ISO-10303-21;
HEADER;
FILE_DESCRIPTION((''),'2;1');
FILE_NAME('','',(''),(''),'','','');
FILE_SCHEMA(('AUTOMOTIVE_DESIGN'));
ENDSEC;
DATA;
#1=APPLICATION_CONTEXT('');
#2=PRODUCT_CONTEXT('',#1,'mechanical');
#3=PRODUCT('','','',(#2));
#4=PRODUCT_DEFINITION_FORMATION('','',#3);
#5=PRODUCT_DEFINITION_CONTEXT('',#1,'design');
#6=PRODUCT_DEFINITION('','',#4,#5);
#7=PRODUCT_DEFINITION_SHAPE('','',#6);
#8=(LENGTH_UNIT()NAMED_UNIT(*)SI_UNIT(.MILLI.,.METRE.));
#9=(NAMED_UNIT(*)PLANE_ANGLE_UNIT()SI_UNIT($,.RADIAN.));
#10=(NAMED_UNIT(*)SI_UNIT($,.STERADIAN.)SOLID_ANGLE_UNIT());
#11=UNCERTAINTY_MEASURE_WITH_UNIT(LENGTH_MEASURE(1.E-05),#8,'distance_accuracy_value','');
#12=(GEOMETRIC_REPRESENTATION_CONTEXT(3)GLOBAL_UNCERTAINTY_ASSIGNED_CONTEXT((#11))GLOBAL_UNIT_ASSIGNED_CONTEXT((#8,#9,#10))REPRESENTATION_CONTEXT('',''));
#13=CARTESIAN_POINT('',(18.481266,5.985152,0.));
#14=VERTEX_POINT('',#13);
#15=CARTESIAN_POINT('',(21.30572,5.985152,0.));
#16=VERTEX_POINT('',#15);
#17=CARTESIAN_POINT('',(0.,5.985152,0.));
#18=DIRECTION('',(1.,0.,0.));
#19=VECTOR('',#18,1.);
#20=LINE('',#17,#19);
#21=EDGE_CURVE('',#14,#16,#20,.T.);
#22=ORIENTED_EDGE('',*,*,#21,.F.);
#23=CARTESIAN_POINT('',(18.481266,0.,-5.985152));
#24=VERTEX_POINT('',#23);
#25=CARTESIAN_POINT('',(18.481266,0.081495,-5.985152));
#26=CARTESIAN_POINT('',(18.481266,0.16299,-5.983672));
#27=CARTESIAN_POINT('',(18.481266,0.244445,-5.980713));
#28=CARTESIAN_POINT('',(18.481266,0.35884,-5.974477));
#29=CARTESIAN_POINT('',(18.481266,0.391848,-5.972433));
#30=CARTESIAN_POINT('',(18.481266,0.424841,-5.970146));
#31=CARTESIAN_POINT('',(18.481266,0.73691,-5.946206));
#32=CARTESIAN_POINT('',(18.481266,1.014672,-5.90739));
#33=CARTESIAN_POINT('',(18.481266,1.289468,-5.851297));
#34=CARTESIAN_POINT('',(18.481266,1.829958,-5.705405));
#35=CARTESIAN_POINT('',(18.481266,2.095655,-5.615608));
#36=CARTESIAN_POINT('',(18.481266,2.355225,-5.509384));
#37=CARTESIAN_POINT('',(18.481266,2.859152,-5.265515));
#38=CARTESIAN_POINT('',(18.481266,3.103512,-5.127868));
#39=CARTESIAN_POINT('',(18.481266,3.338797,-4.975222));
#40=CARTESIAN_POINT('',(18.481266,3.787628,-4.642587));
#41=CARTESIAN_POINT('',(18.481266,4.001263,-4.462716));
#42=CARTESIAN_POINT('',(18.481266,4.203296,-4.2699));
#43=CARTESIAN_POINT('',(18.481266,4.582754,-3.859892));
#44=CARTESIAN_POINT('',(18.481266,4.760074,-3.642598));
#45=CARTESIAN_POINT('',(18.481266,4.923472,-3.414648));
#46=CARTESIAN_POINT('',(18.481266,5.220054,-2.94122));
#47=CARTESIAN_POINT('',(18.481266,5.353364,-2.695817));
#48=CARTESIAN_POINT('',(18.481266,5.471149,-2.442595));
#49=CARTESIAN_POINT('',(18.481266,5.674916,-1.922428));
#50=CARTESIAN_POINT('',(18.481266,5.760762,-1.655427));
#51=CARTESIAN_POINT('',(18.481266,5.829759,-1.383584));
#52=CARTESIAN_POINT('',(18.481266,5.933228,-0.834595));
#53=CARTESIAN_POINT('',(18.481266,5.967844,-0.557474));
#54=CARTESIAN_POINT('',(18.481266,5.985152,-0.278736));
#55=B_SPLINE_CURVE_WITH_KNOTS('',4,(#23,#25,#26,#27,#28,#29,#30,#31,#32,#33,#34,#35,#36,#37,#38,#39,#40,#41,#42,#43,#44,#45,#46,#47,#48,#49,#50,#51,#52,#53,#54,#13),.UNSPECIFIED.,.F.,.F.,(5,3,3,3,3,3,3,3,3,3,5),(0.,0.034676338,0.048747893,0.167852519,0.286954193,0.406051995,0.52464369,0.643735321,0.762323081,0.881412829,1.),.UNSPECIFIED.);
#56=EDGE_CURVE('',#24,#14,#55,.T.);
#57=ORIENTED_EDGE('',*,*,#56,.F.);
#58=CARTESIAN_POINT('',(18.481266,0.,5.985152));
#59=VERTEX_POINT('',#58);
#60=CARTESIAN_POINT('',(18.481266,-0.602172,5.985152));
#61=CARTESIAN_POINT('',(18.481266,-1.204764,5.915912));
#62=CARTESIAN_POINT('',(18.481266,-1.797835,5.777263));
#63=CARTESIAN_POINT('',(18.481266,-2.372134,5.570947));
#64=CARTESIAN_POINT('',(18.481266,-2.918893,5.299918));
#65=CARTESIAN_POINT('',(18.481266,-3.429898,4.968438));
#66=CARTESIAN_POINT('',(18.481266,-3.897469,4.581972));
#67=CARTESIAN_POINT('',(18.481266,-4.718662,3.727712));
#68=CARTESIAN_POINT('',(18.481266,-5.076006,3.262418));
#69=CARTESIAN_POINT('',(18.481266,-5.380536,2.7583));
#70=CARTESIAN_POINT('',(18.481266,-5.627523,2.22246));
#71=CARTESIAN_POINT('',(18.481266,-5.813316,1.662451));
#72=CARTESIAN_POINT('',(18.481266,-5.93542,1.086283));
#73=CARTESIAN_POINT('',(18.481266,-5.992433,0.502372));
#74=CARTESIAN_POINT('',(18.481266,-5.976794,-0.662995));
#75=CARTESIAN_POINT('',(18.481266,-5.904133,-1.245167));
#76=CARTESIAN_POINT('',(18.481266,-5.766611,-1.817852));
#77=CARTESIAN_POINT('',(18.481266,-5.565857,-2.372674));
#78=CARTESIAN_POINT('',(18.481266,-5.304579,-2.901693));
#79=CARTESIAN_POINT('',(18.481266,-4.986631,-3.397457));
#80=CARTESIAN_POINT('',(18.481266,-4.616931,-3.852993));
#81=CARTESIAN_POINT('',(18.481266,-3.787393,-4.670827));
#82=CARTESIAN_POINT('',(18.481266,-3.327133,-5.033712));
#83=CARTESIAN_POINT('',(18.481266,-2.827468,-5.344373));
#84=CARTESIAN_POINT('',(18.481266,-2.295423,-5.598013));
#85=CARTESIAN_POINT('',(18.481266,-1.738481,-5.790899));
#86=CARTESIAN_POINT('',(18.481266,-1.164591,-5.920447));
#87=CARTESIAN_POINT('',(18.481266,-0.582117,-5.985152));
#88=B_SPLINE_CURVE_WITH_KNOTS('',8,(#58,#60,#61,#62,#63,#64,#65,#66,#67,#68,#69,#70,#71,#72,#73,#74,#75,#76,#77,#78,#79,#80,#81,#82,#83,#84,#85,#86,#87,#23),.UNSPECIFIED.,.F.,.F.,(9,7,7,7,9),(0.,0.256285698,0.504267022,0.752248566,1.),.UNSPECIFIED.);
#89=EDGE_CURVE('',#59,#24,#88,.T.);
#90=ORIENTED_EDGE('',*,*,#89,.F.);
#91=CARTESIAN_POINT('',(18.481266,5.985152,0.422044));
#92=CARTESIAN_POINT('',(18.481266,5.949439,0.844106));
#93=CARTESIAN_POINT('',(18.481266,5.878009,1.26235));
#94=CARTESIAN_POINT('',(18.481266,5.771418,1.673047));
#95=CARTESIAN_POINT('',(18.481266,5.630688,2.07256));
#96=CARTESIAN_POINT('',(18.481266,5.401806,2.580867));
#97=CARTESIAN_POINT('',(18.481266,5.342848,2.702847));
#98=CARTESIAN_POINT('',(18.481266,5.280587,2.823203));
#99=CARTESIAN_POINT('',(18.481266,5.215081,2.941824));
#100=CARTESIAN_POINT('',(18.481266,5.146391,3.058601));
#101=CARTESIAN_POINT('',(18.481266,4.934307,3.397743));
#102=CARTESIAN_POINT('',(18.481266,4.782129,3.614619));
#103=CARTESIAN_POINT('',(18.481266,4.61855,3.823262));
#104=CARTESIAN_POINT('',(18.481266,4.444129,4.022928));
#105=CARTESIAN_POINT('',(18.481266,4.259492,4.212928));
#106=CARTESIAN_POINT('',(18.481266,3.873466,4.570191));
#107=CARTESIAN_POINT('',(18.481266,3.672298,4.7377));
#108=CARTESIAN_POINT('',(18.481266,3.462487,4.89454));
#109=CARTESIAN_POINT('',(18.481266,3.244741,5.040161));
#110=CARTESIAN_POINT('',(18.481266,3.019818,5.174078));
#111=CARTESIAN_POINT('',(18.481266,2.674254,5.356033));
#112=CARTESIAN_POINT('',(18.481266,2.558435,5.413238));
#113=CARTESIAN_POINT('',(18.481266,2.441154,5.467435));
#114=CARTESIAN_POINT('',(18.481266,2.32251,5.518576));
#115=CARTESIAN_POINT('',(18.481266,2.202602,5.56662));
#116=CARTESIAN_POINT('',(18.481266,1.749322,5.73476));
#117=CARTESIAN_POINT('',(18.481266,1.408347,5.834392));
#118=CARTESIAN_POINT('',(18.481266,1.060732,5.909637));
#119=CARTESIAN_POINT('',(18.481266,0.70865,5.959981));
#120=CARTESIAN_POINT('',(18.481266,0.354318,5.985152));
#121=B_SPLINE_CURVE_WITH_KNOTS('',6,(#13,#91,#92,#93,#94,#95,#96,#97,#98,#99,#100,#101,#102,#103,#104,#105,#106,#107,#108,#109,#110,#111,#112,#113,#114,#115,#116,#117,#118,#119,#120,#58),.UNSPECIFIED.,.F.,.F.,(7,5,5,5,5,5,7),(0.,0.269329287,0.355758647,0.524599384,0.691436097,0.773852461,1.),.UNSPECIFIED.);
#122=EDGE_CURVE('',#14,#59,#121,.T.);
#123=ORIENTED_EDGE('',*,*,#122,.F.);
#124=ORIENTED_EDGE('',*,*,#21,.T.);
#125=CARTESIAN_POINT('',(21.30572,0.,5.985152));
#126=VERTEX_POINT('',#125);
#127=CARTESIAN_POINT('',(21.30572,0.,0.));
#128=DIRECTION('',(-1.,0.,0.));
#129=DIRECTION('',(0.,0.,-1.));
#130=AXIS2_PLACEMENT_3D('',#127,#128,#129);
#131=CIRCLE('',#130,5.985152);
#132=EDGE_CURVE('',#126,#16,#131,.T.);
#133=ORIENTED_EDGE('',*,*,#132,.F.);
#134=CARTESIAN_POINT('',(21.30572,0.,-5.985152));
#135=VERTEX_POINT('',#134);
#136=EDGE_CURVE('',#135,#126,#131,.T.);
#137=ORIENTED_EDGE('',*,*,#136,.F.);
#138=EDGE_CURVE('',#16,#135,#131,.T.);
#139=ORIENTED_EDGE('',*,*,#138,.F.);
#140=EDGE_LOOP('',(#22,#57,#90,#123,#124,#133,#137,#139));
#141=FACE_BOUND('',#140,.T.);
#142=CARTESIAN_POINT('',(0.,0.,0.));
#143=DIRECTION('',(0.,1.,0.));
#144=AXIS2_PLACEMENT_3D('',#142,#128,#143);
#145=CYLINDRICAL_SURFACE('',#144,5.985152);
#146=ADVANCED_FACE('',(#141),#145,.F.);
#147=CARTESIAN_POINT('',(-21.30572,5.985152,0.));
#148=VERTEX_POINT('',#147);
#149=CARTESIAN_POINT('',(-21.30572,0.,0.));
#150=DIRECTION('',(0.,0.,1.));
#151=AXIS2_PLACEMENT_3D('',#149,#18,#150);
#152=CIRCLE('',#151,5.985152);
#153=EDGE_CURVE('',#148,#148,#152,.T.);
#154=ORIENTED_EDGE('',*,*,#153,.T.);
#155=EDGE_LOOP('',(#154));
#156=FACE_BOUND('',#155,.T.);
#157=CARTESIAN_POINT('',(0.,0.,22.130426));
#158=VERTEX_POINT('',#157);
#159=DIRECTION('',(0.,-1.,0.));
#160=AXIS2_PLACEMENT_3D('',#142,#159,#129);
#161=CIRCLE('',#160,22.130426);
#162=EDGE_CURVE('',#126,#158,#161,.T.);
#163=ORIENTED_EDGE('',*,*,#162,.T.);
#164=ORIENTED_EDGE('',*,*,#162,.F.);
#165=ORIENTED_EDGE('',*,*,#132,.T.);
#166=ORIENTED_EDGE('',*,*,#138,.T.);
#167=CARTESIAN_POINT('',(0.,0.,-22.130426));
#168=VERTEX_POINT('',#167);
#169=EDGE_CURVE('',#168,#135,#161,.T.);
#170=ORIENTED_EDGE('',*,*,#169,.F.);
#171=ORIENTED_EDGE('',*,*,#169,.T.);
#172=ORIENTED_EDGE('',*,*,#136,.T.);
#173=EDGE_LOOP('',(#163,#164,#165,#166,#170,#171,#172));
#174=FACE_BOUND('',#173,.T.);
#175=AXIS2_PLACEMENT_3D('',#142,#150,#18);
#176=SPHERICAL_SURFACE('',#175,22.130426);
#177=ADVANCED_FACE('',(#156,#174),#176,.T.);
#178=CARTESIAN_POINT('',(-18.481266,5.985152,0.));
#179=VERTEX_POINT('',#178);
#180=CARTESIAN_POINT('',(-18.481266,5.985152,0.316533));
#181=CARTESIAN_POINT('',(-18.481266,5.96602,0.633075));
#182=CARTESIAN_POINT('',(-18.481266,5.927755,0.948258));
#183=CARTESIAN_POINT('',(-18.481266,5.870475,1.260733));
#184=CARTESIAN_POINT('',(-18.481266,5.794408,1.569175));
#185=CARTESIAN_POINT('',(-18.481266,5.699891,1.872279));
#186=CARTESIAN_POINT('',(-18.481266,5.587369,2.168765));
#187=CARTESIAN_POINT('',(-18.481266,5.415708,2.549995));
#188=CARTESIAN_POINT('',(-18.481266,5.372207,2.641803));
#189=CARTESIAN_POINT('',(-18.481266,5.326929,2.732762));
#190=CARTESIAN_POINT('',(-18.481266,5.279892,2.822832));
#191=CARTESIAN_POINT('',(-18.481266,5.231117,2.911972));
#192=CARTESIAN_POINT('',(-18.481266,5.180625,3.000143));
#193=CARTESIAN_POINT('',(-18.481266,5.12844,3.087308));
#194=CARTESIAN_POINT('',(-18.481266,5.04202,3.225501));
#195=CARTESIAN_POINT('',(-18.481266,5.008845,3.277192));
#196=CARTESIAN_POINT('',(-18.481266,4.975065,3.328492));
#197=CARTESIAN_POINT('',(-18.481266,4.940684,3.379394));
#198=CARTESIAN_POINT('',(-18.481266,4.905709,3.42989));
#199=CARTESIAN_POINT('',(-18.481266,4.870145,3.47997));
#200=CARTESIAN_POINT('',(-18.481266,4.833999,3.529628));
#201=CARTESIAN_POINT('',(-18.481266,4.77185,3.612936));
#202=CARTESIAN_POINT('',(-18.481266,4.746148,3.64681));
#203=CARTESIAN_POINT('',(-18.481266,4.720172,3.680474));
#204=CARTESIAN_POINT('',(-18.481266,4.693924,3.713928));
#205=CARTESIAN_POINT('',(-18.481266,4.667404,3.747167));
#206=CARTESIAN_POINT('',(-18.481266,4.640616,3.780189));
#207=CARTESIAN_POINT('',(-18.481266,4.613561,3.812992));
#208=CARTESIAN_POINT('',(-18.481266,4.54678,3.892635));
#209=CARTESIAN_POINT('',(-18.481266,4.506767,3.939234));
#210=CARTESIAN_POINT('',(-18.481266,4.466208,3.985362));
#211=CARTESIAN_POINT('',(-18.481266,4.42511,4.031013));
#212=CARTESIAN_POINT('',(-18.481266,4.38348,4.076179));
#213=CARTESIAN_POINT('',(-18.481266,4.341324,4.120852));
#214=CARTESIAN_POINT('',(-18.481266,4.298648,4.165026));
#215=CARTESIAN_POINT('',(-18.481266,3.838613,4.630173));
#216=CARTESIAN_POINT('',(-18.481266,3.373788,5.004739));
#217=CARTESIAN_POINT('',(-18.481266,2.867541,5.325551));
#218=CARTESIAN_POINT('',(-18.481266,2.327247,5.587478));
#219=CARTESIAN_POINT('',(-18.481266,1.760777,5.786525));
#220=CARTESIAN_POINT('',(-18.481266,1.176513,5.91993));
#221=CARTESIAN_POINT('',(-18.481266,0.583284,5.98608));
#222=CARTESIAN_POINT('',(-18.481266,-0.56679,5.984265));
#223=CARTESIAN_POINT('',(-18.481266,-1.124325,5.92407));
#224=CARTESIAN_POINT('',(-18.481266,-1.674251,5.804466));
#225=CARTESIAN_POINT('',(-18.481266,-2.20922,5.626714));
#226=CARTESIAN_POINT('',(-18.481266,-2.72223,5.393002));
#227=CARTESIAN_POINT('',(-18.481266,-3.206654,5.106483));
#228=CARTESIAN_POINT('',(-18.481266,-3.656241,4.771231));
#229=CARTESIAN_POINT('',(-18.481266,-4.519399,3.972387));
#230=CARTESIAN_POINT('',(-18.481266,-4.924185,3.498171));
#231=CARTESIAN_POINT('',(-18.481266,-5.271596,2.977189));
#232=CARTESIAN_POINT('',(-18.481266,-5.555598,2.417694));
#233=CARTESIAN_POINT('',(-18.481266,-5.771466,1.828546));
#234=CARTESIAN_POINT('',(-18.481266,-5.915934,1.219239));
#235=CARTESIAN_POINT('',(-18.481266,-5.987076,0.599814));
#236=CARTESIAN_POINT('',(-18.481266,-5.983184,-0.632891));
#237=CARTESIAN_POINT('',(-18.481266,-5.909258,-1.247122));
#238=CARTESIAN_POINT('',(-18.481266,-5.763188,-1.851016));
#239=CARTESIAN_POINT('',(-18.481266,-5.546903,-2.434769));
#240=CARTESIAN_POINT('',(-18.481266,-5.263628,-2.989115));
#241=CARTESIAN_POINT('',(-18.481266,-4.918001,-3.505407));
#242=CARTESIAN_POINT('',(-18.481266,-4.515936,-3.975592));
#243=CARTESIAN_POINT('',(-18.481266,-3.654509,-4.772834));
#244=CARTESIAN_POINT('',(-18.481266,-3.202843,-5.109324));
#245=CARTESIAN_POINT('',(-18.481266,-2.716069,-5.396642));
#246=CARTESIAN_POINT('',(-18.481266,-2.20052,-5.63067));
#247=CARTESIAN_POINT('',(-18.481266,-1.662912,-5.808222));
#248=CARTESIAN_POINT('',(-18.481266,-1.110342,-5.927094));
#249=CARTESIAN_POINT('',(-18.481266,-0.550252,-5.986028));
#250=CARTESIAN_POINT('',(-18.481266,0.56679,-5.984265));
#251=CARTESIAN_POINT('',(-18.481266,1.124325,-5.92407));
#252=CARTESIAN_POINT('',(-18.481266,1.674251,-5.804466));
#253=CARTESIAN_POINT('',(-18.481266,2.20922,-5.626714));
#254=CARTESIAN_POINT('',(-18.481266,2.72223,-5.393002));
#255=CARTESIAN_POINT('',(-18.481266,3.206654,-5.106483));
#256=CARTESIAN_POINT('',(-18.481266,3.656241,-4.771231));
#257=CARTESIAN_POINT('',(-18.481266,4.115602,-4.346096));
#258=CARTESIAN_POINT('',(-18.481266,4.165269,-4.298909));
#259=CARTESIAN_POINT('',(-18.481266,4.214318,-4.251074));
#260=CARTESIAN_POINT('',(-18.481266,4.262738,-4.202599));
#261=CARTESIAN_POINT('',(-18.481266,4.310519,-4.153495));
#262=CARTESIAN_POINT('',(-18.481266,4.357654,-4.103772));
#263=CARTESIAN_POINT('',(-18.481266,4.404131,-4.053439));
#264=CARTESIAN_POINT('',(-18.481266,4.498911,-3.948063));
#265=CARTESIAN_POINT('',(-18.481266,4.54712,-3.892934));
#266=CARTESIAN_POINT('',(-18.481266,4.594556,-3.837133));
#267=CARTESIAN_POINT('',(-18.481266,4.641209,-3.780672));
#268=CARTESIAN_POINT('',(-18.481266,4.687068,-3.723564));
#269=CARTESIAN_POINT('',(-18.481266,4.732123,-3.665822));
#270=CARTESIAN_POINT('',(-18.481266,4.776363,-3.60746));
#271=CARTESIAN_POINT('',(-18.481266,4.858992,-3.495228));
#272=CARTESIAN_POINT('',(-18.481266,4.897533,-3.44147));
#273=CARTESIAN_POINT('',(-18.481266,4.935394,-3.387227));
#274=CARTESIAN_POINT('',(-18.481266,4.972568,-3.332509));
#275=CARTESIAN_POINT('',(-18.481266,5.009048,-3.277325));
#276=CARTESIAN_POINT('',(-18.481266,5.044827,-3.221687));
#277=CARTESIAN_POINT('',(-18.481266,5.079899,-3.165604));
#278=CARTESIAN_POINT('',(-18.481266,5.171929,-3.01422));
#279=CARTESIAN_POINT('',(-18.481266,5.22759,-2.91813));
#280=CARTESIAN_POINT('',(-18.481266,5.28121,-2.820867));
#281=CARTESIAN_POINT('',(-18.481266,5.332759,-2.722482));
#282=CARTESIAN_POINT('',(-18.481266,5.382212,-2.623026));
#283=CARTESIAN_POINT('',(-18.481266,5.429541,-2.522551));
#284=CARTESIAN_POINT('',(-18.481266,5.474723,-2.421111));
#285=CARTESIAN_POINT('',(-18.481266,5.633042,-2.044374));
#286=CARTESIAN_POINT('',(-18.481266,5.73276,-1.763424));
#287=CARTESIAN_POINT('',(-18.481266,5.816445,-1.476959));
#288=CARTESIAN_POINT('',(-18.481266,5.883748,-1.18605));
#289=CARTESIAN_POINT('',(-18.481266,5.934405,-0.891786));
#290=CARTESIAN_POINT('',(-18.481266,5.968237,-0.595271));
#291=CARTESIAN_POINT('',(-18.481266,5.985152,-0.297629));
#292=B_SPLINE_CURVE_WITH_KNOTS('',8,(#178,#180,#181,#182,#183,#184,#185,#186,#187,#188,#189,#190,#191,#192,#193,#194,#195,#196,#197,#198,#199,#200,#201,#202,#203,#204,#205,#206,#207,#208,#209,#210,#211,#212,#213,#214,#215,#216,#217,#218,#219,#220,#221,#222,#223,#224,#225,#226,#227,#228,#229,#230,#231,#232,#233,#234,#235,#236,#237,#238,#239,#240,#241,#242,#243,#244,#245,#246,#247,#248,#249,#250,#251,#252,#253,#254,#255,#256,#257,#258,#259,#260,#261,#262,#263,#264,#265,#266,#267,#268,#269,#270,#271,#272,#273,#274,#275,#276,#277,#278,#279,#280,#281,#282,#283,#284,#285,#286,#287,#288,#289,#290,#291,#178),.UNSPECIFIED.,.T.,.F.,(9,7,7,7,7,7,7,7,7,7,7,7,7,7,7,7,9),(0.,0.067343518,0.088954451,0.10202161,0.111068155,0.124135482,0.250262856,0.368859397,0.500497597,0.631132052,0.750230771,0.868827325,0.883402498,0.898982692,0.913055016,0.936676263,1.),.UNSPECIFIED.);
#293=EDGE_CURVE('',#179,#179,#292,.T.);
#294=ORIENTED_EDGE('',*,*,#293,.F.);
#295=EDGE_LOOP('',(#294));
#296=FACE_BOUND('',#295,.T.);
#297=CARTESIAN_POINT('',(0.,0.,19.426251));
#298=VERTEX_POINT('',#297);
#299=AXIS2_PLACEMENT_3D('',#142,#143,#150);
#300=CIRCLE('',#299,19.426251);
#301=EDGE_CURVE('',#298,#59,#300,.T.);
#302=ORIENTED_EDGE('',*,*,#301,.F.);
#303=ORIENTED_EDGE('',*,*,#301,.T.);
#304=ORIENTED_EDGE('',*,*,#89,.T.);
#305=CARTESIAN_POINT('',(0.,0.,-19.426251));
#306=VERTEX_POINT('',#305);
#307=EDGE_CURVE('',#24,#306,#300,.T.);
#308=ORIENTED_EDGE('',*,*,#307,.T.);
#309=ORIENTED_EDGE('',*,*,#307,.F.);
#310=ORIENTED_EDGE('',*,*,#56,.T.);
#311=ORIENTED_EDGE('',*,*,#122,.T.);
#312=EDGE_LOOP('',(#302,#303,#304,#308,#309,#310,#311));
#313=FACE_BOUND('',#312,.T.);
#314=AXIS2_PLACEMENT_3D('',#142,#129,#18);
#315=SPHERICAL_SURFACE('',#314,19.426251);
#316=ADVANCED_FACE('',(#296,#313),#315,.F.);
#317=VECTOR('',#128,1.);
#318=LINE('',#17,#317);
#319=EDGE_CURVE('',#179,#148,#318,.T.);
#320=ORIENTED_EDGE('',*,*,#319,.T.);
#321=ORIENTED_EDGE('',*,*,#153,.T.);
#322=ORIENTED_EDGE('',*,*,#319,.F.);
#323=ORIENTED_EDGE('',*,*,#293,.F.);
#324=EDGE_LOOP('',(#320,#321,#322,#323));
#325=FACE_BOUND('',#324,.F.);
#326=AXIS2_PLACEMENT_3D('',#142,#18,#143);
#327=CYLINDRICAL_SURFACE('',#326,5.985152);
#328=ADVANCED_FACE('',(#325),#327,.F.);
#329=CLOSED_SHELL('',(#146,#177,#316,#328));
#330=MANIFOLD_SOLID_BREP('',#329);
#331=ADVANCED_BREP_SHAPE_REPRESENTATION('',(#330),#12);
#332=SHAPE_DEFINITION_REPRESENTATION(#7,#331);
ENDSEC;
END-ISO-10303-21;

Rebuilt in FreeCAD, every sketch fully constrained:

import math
import FreeCAD as App
import Part
import Sketcher

V = App.Vector
Q = App.Units.Quantity

doc = App.newDocument("Part")
body = doc.addObject("PartDesign::Body", "Body")

# Sketch on XZ plane
sketch1 = doc.addObject("Sketcher::SketchObject", "Sketch")
body.addObject(sketch1)
sketch1.AttachmentSupport = (doc.XZ_Plane, [""])
sketch1.MapMode = "FlatFace"
sketch1.addGeometry(Part.LineSegment(V(0, 22.1, 0), V(0, 19.4, 0)), False)
sketch1.addGeometry(Part.ArcOfCircle(Part.Circle(V(0, 0, 0), V(0, 0, 1), 19.4), math.radians(-90), math.radians(90)), False)
sketch1.addGeometry(Part.LineSegment(V(0, -19.4, 0), V(0, -22.1, 0)), False)
sketch1.addGeometry(Part.ArcOfCircle(Part.Circle(V(0, 0, 0), V(0, 0, 1), 22.1), math.radians(-90), math.radians(90)), False)
sketch1.addConstraint(Sketcher.Constraint("Coincident", 0, 2, 1, 2))
sketch1.addConstraint(Sketcher.Constraint("Coincident", 1, 1, 2, 1))
sketch1.addConstraint(Sketcher.Constraint("Coincident", 2, 2, 3, 1))
sketch1.addConstraint(Sketcher.Constraint("Coincident", 3, 2, 0, 1))
sketch1.addConstraint(Sketcher.Constraint("Vertical", 0))
sketch1.addConstraint(Sketcher.Constraint("Vertical", 2))
sketch1.addConstraint(Sketcher.Constraint("Coincident", 1, 3, -1, 1))
sketch1.addConstraint(Sketcher.Constraint("Coincident", 3, 3, -1, 1))
sketch1.addConstraint(Sketcher.Constraint("PointOnObject", 0, 2, -2))
sketch1.addConstraint(Sketcher.Constraint("PointOnObject", 1, 1, -2))
sketch1.addConstraint(Sketcher.Constraint("Radius", 1, Q("19.426251 mm")))
sketch1.addConstraint(Sketcher.Constraint("Radius", 3, Q("22.130426 mm")))
revolution = doc.addObject("PartDesign::Revolution", "Revolution")
body.addObject(revolution)
revolution.Profile = sketch1
revolution.ReferenceAxis = (sketch1, ["V_Axis"])
revolution.Angle = 360

# Sketch on YZ plane
sketch2 = doc.addObject("Sketcher::SketchObject", "Sketch001")
body.addObject(sketch2)
sketch2.AttachmentSupport = (doc.YZ_Plane, [""])
sketch2.MapMode = "FlatFace"
sketch2.addGeometry(Part.Circle(V(0, 0, 0), V(0, 0, 1), 6), False)
sketch2.addConstraint(Sketcher.Constraint("Coincident", 0, 3, -1, 1))
sketch2.addConstraint(Sketcher.Constraint("Diameter", 0, Q("11.970304 mm")))
pocket1 = doc.addObject("PartDesign::Pocket", "Pocket")
body.addObject(pocket1)
pocket1.Profile = sketch2
pocket1.Length = Q("1 in")

# Sketch on YZ plane
sketch3 = doc.addObject("Sketcher::SketchObject", "Sketch002")
body.addObject(sketch3)
sketch3.AttachmentSupport = (doc.YZ_Plane, [""])
sketch3.MapMode = "FlatFace"
sketch3.addGeometry(Part.Circle(V(0, 0, 0), V(0, 0, 1), 6), False)
sketch3.addConstraint(Sketcher.Constraint("Coincident", 0, 3, -1, 1))
sketch3.addConstraint(Sketcher.Constraint("Diameter", 0, Q("11.970304 mm")))
pocket2 = doc.addObject("PartDesign::Pocket", "Pocket001")
body.addObject(pocket2)
pocket2.Profile = sketch3
pocket2.Length = Q("1 in")
pocket2.Reversed = True

doc.recompute()
